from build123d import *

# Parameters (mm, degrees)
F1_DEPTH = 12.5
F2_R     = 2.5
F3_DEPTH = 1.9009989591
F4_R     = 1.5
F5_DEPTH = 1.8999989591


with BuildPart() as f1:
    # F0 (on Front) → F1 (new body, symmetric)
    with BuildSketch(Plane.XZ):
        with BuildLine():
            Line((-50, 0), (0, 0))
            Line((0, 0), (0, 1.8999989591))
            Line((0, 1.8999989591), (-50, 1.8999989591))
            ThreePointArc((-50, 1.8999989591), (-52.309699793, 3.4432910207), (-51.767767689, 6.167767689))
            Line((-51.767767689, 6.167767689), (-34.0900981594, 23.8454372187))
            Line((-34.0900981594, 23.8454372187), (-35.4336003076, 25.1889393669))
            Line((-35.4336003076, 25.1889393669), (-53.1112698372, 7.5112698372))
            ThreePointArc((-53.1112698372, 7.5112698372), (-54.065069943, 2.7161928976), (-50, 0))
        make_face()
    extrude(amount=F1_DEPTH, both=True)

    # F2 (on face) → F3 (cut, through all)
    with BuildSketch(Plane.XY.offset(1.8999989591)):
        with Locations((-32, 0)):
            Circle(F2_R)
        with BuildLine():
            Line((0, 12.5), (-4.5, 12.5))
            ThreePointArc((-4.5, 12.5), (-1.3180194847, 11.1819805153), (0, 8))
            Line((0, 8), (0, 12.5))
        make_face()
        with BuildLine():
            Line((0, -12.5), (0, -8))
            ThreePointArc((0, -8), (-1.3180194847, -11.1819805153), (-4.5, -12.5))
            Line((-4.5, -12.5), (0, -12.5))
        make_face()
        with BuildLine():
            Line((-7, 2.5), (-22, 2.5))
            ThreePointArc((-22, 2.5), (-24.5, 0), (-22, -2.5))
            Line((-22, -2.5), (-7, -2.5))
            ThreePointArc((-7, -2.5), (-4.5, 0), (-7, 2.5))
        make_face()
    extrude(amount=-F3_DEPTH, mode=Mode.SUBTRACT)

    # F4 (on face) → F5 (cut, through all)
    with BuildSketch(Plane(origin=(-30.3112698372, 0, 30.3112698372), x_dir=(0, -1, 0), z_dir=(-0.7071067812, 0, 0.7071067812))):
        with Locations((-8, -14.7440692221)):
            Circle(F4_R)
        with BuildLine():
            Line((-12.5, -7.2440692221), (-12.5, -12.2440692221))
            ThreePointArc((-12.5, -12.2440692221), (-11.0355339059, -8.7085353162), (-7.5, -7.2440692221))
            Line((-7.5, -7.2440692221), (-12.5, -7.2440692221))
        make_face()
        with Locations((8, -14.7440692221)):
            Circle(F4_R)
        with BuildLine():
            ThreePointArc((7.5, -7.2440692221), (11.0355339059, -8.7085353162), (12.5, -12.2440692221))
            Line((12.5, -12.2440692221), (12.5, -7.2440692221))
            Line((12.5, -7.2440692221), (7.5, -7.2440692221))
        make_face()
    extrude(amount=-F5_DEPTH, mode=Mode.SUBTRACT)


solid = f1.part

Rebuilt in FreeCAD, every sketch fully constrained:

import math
import FreeCAD as App
import Part
import Sketcher

V = App.Vector
Q = App.Units.Quantity

doc = App.newDocument("Part")
body = doc.addObject("PartDesign::Body", "Body")

# Sketch on XZ plane
sketch1 = body.newObject("Sketcher::SketchObject", "Sketch")
sketch1.AttachmentSupport = (doc.getObject("XZ_Plane"), [""])
sketch1.MapMode = "FlatFace"
sketch1.addGeometry([
    Part.LineSegment(V(-50, 0, 0), V(0, 0, 0)),  # 0
    Part.LineSegment(V(0, 0, 0), V(0, 1.9, 0)),  # 1
    Part.LineSegment(V(0, 1.9, 0), V(-50, 1.9, 0)),  # 2
    Part.ArcOfCircle(Part.Circle(V(-50, 4.4, 0), V(0, 0, 1), 2.5), math.radians(135), math.radians(270)),  # 3
    Part.LineSegment(V(-51.8, 6.2, 0), V(-34.1, 23.8, 0)),  # 4
    Part.LineSegment(V(-34.1, 23.8, 0), V(-35.4, 25.2, 0)),  # 5
    Part.LineSegment(V(-35.4, 25.2, 0), V(-53.1, 7.5, 0)),  # 6
    Part.ArcOfCircle(Part.Circle(V(-50, 4.4, 0), V(0, 0, 1), 4.4), math.radians(135), math.radians(270)),  # 7
], False)
sketch1.addConstraint([
    Sketcher.Constraint("Coincident", 0, 2, 1, 1),
    Sketcher.Constraint("Coincident", 1, 2, 2, 1),
    Sketcher.Constraint("Tangent", 2, 2, 3, 2),
    Sketcher.Constraint("Tangent", 3, 1, 4, 1),
    Sketcher.Constraint("Coincident", 4, 2, 5, 1),
    Sketcher.Constraint("Coincident", 5, 2, 6, 1),
    Sketcher.Constraint("Tangent", 6, 2, 7, 1),
    Sketcher.Constraint("Tangent", 7, 2, 0, 1),
    Sketcher.Constraint("Horizontal", 0),
    Sketcher.Constraint("Vertical", 1),
    Sketcher.Constraint("Horizontal", 2),
    Sketcher.Constraint("Coincident", 0, 2, -1, 1),
    Sketcher.Constraint("Coincident", 7, 3, 3, 3),
    Sketcher.Constraint("Perpendicular", 4, 5),
    Sketcher.Constraint("Perpendicular", 5, 6),
    Sketcher.Constraint("Radius", 3, Q("2.500001 mm")),
    Sketcher.Constraint("Radius", 7, Q("4.4 mm")),
    Sketcher.Constraint("DistanceX", 0, 1, 0, 2, Q("50 mm")),
    Sketcher.Constraint("Angle", 4, Q("45 deg")),
    Sketcher.Constraint("Distance", 4, Q("25 mm")),
])
pad1 = body.newObject("PartDesign::Pad", "Pad")
pad1.Profile = sketch1
pad1.Length = 25
pad1.Midplane = True

# Sketch on XY plane
sketch2 = body.newObject("Sketcher::SketchObject", "Sketch001")
sketch2.AttachmentSupport = (doc.getObject("XY_Plane"), [""])
sketch2.MapMode = "FlatFace"
sketch2.AttachmentOffset = App.Placement(V(0, 0, 1.899999), App.Rotation())
sketch2.addGeometry([
    Part.Circle(V(-32, 0, 0), V(0, 0, 1), 2.5),  # 0
    Part.LineSegment(V(0, 12.5, 0), V(-4.5, 12.5, 0)),  # 1
    Part.ArcOfCircle(Part.Circle(V(-4.5, 8, 0), V(0, 0, 1), 4.5), math.radians(0), math.radians(90)),  # 2
    Part.LineSegment(V(0, 8, 0), V(0, 12.5, 0)),  # 3
    Part.LineSegment(V(0, -12.5, 0), V(0, -8, 0)),  # 4
    Part.ArcOfCircle(Part.Circle(V(-4.5, -8, 0), V(0, 0, 1), 4.5), math.radians(-90), math.radians(0)),  # 5
    Part.LineSegment(V(-4.5, -12.5, 0), V(0, -12.5, 0)),  # 6
    Part.LineSegment(V(-7, 2.5, 0), V(-22, 2.5, 0)),  # 7
    Part.ArcOfCircle(Part.Circle(V(-22, 0, 0), V(0, 0, 1), 2.5), math.radians(90), math.radians(270)),  # 8
    Part.LineSegment(V(-22, -2.5, 0), V(-7, -2.5, 0)),  # 9
    Part.ArcOfCircle(Part.Circle(V(-7, 0, 0), V(0, 0, 1), 2.5), math.radians(-90), math.radians(90)),  # 10
], False)
sketch2.addConstraint([
    Sketcher.Constraint("Tangent", 1, 2, 2, 2),
    Sketcher.Constraint("Tangent", 2, 1, 3, 1),
    Sketcher.Constraint("Coincident", 3, 2, 1, 1),
    Sketcher.Constraint("Tangent", 4, 2, 5, 2),
    Sketcher.Constraint("Tangent", 5, 1, 6, 1),
    Sketcher.Constraint("Coincident", 6, 2, 4, 1),
    Sketcher.Constraint("Tangent", 7, 2, 8, 1),
    Sketcher.Constraint("Tangent", 8, 2, 9, 1),
    Sketcher.Constraint("Tangent", 9, 2, 10, 1),
    Sketcher.Constraint("Tangent", 10, 2, 7, 1),
    Sketcher.Constraint("Horizontal", 1),
    Sketcher.Constraint("Vertical", 3),
    Sketcher.Constraint("Vertical", 4),
    Sketcher.Constraint("Horizontal", 6),
    Sketcher.Constraint("Horizontal", 7),
    Sketcher.Constraint("Horizontal", 9),
    Sketcher.Constraint("Equal", 2, 5),
    Sketcher.Constraint("Equal", 0, 8),
    Sketcher.Constraint("Symmetric", 2, 1, 4, 2, -1, 1),
    Sketcher.Constraint("PointOnObject", 0, 3, -1),
    Sketcher.Constraint("PointOnObject", 8, 3, -1),
    Sketcher.Constraint("PointOnObject", 2, 1, -2),
    Sketcher.Constraint("Diameter", 0, Q("5 mm")),
    Sketcher.Constraint("Radius", 2, Q("4.5 mm")),
    Sketcher.Constraint("DistanceX", 7, 2, 7, 1, Q("15 mm")),
    Sketcher.Constraint("DistanceX", 0, 3, -1, 1, Q("32 mm")),
    Sketcher.Constraint("DistanceY", -1, 1, 2, 3, Q("8 mm")),
    Sketcher.Constraint("DistanceX", 8, 3, -1, 1, Q("22 mm")),
])
pocket1 = body.newObject("PartDesign::Pocket", "Pocket")
pocket1.Profile = sketch2
pocket1.Type = "ThroughAll"

# Sketch on an angled plane
sketch3 = body.newObject("Sketcher::SketchObject", "Sketch002")
sketch3.Placement = App.Placement(V(-30.31127, 0, 30.31127), App.Rotation(V(0, -1, 0), V(0.707106781, 0, 0.707106781), V(-0.707106781, 0, 0.707106781), "ZXY"))
sketch3.addGeometry([
    Part.Circle(V(-8, -14.7, 0), V(0, 0, 1), 1.5),  # 0
    Part.LineSegment(V(-12.5, -7.2, 0), V(-12.5, -12.2, 0)),  # 1
    Part.ArcOfCircle(Part.Circle(V(-7.5, -12.2, 0), V(0, 0, 1), 5), math.radians(90), math.radians(180)),  # 2
    Part.LineSegment(V(-7.5, -7.2, 0), V(-12.5, -7.2, 0)),  # 3
    Part.Circle(V(8, -14.7, 0), V(0, 0, 1), 1.5),  # 4
    Part.ArcOfCircle(Part.Circle(V(7.5, -12.2, 0), V(0, 0, 1), 5), math.radians(0), math.radians(90)),  # 5
    Part.LineSegment(V(12.5, -12.2, 0), V(12.5, -7.2, 0)),  # 6
    Part.LineSegment(V(12.5, -7.2, 0), V(7.5, -7.2, 0)),  # 7
], False)
sketch3.addConstraint([
    Sketcher.Constraint("Tangent", 1, 2, 2, 2),
    Sketcher.Constraint("Tangent", 2, 1, 3, 1),
    Sketcher.Constraint("Coincident", 3, 2, 1, 1),
    Sketcher.Constraint("Tangent", 5, 1, 6, 1),
    Sketcher.Constraint("Coincident", 6, 2, 7, 1),
    Sketcher.Constraint("Tangent", 7, 2, 5, 2),
    Sketcher.Constraint("Vertical", 1),
    Sketcher.Constraint("Horizontal", 3),
    Sketcher.Constraint("Vertical", 6),
    Sketcher.Constraint("Horizontal", 7),
    Sketcher.Constraint("Equal", 0, 4),
    Sketcher.Constraint("Equal", 2, 5),
    Sketcher.Constraint("Symmetric", 0, 3, 4, 3, -2),
    Sketcher.Constraint("Symmetric", 2, 3, 5, 3, -2),
    Sketcher.Constraint("Diameter", 0, Q("3 mm")),
    Sketcher.Constraint("Radius", 2, Q("5 mm")),
    Sketcher.Constraint("DistanceX", 0, 3, -1, 1, Q("8 mm")),
    Sketcher.Constraint("DistanceX", 2, 3, 5, 3, Q("15 mm")),
    Sketcher.Constraint("DistanceY", 0, 3, 2, 3, Q("2.5 mm")),
    Sketcher.Constraint("DistanceY", 0, 3, -1, 1, Q("14.744069 mm")),
])
pocket2 = body.newObject("PartDesign::Pocket", "Pocket001")
pocket2.Profile = sketch3
pocket2.Length = 1.899999

doc.recompute()
